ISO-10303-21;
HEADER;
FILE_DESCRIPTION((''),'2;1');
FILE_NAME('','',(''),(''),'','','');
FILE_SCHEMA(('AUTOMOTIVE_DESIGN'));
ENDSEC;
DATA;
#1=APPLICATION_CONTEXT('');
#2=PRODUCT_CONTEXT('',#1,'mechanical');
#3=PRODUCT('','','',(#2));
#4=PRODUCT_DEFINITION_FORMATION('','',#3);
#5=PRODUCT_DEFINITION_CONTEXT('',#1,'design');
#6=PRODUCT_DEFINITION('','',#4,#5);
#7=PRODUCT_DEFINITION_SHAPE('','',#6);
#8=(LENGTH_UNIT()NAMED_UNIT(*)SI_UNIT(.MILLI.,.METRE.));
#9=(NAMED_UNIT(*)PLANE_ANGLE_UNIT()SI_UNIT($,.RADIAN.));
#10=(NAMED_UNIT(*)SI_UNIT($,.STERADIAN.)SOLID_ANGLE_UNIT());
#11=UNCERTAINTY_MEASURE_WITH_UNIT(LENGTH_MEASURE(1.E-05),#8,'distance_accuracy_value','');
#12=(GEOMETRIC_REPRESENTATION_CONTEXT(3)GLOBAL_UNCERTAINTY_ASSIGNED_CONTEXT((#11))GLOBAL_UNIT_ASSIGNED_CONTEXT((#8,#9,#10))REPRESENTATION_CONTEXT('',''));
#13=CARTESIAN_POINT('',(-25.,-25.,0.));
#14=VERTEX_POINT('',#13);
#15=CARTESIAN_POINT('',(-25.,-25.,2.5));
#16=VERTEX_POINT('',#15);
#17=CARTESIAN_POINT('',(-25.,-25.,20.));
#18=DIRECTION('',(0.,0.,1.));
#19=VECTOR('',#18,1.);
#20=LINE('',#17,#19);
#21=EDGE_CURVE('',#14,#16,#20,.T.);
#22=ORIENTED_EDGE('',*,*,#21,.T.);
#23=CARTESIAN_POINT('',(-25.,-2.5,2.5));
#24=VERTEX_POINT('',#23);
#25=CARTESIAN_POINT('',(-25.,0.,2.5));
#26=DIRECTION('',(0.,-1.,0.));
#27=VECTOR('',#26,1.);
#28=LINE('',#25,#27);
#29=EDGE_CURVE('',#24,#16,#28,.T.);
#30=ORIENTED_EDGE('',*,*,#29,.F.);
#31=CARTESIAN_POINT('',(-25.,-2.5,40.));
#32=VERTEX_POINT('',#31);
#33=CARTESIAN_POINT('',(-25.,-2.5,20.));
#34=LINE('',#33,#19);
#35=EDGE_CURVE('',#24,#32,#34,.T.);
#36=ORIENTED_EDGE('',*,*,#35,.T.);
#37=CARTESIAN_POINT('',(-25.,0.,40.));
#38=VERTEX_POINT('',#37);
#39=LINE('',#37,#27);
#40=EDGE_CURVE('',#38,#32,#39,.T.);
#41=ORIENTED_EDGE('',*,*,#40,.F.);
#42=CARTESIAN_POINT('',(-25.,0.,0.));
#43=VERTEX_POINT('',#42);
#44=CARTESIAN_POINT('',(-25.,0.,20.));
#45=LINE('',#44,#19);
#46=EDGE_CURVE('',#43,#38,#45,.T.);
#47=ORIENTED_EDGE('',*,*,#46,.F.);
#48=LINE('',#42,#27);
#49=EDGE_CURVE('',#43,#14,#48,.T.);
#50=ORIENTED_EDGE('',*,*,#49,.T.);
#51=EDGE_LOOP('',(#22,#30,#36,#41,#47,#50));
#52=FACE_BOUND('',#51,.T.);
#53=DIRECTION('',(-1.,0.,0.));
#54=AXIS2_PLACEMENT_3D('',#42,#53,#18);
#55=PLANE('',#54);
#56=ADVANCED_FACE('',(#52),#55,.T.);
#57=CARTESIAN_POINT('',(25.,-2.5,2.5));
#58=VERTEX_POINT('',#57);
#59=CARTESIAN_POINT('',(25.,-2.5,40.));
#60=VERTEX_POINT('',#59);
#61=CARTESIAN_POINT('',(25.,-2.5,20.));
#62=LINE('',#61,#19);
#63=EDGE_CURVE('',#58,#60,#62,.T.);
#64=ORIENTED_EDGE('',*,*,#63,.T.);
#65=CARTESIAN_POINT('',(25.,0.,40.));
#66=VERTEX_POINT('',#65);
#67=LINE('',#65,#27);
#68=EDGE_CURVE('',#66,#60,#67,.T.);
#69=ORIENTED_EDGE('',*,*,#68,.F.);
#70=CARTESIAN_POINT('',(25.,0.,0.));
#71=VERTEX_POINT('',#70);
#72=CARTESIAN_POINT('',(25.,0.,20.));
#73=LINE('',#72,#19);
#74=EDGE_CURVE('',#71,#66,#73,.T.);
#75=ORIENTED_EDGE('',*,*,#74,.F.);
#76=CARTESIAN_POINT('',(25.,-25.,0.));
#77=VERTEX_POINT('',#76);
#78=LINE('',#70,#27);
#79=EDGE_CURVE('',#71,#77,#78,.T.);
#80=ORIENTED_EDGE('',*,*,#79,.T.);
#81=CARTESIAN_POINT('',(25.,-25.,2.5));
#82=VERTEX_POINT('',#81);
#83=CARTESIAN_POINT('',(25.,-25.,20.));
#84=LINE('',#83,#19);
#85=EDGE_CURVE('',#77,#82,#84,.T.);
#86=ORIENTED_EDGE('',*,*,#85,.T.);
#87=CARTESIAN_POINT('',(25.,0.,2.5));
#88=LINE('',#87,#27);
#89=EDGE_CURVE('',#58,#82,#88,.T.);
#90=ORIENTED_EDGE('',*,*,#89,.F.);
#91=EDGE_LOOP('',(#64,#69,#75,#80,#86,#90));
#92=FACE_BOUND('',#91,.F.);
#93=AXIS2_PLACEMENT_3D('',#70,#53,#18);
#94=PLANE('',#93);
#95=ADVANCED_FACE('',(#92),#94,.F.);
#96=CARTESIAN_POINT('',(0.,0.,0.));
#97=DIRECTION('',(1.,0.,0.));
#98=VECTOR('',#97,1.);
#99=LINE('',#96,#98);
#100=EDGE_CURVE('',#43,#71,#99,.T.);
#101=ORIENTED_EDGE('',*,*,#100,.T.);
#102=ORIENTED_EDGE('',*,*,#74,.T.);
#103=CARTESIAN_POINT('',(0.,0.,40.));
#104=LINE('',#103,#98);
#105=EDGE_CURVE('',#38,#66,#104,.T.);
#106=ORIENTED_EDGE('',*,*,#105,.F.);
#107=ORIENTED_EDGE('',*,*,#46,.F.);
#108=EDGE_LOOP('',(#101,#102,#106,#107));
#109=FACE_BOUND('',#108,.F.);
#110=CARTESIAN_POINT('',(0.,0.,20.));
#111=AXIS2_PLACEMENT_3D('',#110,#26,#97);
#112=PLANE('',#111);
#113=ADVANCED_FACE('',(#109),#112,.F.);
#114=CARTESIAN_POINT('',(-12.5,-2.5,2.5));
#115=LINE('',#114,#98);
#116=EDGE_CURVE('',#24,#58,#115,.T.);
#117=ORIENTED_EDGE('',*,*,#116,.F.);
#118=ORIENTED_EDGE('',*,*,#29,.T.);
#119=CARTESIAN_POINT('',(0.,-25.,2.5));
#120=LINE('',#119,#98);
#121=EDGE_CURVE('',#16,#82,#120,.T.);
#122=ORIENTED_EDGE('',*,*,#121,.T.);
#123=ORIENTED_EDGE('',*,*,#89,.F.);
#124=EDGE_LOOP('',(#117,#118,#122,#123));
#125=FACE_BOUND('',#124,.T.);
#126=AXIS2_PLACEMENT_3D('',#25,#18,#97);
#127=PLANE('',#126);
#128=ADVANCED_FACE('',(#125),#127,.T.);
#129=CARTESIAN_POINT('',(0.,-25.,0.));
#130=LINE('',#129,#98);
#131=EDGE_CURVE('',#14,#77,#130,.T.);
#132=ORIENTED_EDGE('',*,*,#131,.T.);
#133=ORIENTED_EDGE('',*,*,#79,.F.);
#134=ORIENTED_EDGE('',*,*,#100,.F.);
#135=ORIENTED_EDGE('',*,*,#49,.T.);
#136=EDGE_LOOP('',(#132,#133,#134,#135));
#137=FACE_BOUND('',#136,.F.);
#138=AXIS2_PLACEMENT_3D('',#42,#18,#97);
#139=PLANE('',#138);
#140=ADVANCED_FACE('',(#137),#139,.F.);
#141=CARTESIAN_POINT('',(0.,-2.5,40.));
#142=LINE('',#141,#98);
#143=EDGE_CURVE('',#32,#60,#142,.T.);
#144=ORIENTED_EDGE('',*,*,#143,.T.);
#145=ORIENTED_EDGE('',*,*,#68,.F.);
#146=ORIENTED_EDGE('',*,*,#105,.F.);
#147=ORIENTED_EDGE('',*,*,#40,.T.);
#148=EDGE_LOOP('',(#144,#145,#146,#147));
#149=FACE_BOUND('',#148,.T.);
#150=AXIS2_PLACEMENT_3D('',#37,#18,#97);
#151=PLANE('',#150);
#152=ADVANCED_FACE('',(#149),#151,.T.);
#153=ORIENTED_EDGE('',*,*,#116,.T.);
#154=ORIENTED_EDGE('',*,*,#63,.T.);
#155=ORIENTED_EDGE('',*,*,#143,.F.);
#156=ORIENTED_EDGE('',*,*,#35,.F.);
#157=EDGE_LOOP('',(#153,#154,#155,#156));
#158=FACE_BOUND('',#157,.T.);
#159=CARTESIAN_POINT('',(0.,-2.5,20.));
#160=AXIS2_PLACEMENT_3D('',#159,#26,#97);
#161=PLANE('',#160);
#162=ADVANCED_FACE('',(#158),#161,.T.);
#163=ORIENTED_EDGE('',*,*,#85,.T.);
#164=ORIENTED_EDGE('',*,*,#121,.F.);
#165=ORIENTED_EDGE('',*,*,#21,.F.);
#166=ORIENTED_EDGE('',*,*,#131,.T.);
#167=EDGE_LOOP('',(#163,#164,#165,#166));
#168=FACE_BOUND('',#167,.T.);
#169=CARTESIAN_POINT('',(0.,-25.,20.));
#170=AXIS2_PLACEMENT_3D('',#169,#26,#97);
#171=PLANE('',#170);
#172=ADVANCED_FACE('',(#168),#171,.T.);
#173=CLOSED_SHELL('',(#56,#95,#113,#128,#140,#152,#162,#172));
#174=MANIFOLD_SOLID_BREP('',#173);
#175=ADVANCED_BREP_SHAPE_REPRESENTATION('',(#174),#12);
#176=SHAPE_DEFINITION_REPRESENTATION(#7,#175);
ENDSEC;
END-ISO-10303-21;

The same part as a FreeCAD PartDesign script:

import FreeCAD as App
import Part
import Sketcher

V = App.Vector


def faces_at(feature, points):
    """Names of the faces that lie closest to the given points."""
    faces = feature.Shape.Faces
    near = lambda p: min(range(len(faces)), key=lambda i: faces[i].distToShape(Part.Vertex(*p))[0])
    return sorted({f"Face{near(p) + 1}" for p in points})


def add_polygon(sketch, points):
    """Adds a closed chain of lines whose ends are joined by coincident constraints."""
    first, n = sketch.GeometryCount, len(points)
    for a, b in zip(points, points[1:] + points[:1]):
        sketch.addGeometry(Part.LineSegment(App.Vector(*a, 0), App.Vector(*b, 0)), False)
    for i in range(n):
        sketch.addConstraint(Sketcher.Constraint("Coincident", first + i, 2, first + (i + 1) % n, 1))

doc = App.newDocument("Part")
body = doc.addObject("PartDesign::Body", "Body")

sketch1 = body.newObject("Sketcher::SketchObject", "Sketch")
sketch1.AttachmentSupport = (doc.getObject("XZ_Plane"), [""])
sketch1.MapMode = "FlatFace"
add_polygon(sketch1, [(-25, 40), (-25, 0), (25, 0), (25, 40)])
sketch1.addConstraint([
    Sketcher.Constraint("Vertical", 0),
    Sketcher.Constraint("Horizontal", 1),
    Sketcher.Constraint("Vertical", 2),
    Sketcher.Constraint("Horizontal", 3),
    Sketcher.Constraint("Symmetric", 0, 2, 1, 2, -1, 1),
    Sketcher.Constraint("DistanceX", 1, 1, 1, 2, 50.0),
    Sketcher.Constraint("DistanceY", 0, 2, 0, 1, 40.0),
])
pad1 = body.newObject("PartDesign::Pad", "Pad")
pad1.Profile = sketch1
pad1.Length = 25
doc.recompute()

thickness = body.newObject("PartDesign::Thickness", "Thickness")
thickness.Base = (pad1, faces_at(pad1, [
    (0, -12.5, 40),
    (0, -25, 20),
    (25, -12.5, 20),
    (-25, -12.5, 20),
]))
thickness.Value = 2.5
thickness.Reversed = True
thickness.Join = "Arc"

doc.recompute()
